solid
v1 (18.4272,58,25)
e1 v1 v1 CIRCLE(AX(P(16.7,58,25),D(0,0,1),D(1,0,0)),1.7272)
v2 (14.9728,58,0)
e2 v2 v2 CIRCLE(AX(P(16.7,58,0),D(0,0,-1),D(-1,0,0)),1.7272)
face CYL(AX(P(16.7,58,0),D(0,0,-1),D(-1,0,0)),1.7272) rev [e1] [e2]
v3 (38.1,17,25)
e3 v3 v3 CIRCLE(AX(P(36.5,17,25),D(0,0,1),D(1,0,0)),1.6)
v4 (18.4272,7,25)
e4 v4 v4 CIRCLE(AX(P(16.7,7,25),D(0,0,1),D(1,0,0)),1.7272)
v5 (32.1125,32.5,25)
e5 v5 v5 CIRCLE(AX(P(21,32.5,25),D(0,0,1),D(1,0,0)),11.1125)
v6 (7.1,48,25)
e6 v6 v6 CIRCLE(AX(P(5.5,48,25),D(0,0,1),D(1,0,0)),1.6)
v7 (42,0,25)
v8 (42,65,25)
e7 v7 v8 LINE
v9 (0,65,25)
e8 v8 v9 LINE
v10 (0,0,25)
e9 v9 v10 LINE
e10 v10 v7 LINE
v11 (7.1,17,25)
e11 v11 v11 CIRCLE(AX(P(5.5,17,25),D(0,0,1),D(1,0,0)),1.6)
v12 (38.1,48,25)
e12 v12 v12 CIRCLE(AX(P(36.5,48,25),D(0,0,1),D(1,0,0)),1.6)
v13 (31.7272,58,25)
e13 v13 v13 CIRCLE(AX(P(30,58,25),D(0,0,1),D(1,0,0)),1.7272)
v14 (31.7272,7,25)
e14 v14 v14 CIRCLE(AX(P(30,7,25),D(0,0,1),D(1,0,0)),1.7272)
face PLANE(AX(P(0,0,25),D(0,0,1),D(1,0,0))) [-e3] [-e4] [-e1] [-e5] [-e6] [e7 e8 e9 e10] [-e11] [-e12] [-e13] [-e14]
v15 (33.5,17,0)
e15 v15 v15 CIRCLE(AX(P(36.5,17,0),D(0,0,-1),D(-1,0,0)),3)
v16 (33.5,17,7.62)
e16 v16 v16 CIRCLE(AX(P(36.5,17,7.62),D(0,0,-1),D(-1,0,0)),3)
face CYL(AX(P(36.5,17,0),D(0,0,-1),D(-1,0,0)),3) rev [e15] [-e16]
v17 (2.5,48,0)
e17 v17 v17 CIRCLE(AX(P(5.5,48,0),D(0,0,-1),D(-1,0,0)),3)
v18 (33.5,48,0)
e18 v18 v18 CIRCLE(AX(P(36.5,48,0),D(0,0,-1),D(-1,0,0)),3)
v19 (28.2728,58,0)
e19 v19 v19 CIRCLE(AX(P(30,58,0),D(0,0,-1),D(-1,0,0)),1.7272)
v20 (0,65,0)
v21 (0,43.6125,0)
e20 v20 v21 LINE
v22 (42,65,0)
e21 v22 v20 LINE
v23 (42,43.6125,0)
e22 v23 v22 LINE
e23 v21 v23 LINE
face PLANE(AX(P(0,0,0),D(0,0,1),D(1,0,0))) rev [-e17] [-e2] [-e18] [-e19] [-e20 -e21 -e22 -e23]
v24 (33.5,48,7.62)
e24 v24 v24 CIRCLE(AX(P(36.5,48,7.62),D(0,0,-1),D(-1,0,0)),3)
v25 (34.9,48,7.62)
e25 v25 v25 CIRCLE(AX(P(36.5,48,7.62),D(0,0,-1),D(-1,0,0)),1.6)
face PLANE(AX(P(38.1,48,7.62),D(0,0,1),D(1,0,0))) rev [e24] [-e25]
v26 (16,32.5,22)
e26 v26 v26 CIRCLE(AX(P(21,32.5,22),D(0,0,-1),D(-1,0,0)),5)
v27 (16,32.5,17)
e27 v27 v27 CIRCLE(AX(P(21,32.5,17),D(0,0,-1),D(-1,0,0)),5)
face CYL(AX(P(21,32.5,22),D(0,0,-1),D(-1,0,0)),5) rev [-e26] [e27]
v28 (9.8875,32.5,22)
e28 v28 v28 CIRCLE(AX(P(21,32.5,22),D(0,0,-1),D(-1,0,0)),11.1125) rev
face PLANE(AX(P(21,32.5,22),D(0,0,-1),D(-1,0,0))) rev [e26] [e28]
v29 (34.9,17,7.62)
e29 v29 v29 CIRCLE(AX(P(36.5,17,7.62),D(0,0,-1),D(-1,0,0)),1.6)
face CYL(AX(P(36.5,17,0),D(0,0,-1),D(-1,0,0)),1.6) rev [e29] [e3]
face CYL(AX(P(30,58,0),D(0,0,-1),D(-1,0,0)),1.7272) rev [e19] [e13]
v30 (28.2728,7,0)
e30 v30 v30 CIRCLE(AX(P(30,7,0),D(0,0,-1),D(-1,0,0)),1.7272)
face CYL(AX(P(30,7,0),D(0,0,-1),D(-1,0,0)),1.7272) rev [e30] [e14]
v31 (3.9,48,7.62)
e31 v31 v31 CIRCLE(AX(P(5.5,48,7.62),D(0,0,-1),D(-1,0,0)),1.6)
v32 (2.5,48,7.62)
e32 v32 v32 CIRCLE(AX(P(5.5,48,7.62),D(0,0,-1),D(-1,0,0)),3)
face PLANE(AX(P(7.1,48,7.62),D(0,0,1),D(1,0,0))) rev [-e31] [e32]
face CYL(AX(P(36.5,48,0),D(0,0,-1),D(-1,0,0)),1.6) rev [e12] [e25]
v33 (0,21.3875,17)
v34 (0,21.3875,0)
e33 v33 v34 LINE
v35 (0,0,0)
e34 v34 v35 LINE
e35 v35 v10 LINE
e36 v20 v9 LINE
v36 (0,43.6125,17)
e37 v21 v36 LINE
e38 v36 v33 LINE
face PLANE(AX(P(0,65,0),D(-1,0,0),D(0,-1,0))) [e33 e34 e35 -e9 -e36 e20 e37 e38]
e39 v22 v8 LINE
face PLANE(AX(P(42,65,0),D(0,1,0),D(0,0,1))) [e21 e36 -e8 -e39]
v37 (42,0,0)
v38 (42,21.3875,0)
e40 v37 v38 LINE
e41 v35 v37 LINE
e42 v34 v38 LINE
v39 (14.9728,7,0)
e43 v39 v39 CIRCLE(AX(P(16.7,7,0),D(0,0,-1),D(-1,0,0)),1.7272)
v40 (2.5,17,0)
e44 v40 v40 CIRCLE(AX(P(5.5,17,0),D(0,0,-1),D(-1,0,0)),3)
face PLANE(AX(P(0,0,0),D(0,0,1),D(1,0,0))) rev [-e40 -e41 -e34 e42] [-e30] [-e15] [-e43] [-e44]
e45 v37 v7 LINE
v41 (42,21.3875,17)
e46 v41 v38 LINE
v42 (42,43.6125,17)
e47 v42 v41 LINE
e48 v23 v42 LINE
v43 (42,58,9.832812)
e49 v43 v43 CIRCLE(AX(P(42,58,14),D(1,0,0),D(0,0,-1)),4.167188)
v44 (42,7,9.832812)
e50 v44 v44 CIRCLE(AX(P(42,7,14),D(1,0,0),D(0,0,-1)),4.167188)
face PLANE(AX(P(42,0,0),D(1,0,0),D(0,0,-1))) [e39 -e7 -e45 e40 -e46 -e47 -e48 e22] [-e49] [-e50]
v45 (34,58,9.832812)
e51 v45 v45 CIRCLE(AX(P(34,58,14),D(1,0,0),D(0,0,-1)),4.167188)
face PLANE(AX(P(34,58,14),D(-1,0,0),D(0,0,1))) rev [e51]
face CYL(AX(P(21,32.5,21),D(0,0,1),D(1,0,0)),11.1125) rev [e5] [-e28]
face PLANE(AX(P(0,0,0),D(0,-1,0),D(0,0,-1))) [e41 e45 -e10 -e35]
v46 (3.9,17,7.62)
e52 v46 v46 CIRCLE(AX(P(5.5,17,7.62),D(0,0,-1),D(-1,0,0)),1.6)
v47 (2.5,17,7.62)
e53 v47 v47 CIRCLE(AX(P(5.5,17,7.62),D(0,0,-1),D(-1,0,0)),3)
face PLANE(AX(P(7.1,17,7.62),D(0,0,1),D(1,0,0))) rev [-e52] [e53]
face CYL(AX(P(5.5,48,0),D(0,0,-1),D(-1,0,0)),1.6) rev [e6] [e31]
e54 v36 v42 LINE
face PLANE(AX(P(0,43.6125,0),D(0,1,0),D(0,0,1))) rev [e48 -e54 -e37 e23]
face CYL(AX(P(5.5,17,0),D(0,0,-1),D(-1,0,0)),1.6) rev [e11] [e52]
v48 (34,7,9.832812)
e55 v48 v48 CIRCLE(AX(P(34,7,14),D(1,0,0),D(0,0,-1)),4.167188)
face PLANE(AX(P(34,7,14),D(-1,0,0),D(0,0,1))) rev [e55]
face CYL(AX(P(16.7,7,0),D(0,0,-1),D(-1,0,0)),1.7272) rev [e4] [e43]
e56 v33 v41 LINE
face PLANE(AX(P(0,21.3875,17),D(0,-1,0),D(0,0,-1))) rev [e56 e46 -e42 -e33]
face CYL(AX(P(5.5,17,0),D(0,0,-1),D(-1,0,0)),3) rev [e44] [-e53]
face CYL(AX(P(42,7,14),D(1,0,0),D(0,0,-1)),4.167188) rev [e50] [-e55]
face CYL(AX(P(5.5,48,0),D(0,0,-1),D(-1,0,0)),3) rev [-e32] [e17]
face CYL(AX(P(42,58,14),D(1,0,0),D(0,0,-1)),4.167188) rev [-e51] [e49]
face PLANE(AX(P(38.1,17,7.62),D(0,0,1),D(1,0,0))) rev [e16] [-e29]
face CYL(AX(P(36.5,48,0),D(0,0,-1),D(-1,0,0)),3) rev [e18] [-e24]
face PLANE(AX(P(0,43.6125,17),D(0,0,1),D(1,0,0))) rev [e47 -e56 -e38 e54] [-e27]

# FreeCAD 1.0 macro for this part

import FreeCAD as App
import Part
import Sketcher

V = App.Vector
Q = App.Units.Quantity


def add_polygon(sketch, points):
    """Adds a closed chain of lines whose ends are joined by coincident constraints."""
    first, n = sketch.GeometryCount, len(points)
    for a, b in zip(points, points[1:] + points[:1]):
        sketch.addGeometry(Part.LineSegment(App.Vector(*a, 0), App.Vector(*b, 0)), False)
    for i in range(n):
        sketch.addConstraint(Sketcher.Constraint("Coincident", first + i, 2, first + (i + 1) % n, 1))

doc = App.newDocument("Part")
body = doc.addObject("PartDesign::Body", "Body")

sketch1 = body.newObject("Sketcher::SketchObject", "Sketch")
sketch1.AttachmentSupport = (doc.getObject("XY_Plane"), [""])
sketch1.MapMode = "FlatFace"
sketch1.AttachmentOffset = App.Placement(V(0, 0, 21), App.Rotation())
add_polygon(sketch1, [(0, 65), (0, 0), (42, 0), (42, 65)])
sketch1.addConstraint(Sketcher.Constraint("Vertical", 0))
sketch1.addConstraint(Sketcher.Constraint("Horizontal", 1))
sketch1.addConstraint(Sketcher.Constraint("Vertical", 2))
sketch1.addConstraint(Sketcher.Constraint("Horizontal", 3))
sketch1.addConstraint(Sketcher.Constraint("Coincident", 0, 2, -1, 1))
sketch1.addConstraint(Sketcher.Constraint("DistanceX", 1, 1, 1, 2, Q("42 mm")))
sketch1.addConstraint(Sketcher.Constraint("DistanceY", 0, 2, 0, 1, Q("65 mm")))
pad1 = body.newObject("PartDesign::Pad", "Pad")
pad1.Profile = sketch1
pad1.Length = 21
pad1.Reversed = True

sketch2 = body.newObject("Sketcher::SketchObject", "Sketch001")
sketch2.AttachmentSupport = (doc.getObject("YZ_Plane"), [""])
sketch2.MapMode = "FlatFace"
sketch2.AttachmentOffset = App.Placement(V(0, 0, 42), App.Rotation())
add_polygon(sketch2, [(43.6125, 17), (21.3875, 17), (21.3875, 0), (43.6125, 0)])
sketch2.addConstraint(Sketcher.Constraint("Horizontal", 0))
sketch2.addConstraint(Sketcher.Constraint("Vertical", 1))
sketch2.addConstraint(Sketcher.Constraint("Horizontal", 2))
sketch2.addConstraint(Sketcher.Constraint("Vertical", 3))
sketch2.addConstraint(Sketcher.Constraint("PointOnObject", 1, 2, -1))
sketch2.addConstraint(Sketcher.Constraint("DistanceY", 1, 2, 1, 1, Q("17 mm")))
sketch2.addConstraint(Sketcher.Constraint("DistanceX", 0, 2, 0, 1, Q("22.225 mm")))
sketch2.addConstraint(Sketcher.Constraint("DistanceX", -1, 1, 0, 2, Q("21.3875 mm")))
pocket1 = body.newObject("PartDesign::Pocket", "Pocket")
pocket1.Profile = sketch2
pocket1.Type = "ThroughAll"

sketch3 = body.newObject("Sketcher::SketchObject", "Sketch002")
sketch3.AttachmentSupport = (doc.getObject("XY_Plane"), [""])
sketch3.MapMode = "FlatFace"
sketch3.addGeometry(Part.Circle(V(30, 7, 0), V(0, 0, 1), 1.7272), False)
sketch3.addGeometry(Part.Circle(V(16.7, 7, 0), V(0, 0, 1), 1.7272), False)
sketch3.addGeometry(Part.Circle(V(16.7, 58, 0), V(0, 0, 1), 1.7272), False)
sketch3.addGeometry(Part.Circle(V(30, 58, 0), V(0, 0, 1), 1.7272), False)
sketch3.addConstraint(Sketcher.Constraint("Equal", 0, 1))
sketch3.addConstraint(Sketcher.Constraint("Equal", 1, 2))
sketch3.addConstraint(Sketcher.Constraint("Equal", 2, 3))
sketch3.addConstraint(Sketcher.Constraint("Horizontal", 0, 3, 1, 3))
sketch3.addConstraint(Sketcher.Constraint("Horizontal", 2, 3, 3, 3))
sketch3.addConstraint(Sketcher.Constraint("Vertical", 1, 3, 2, 3))
sketch3.addConstraint(Sketcher.Constraint("Vertical", 0, 3, 3, 3))
sketch3.addConstraint(Sketcher.Constraint("DistanceX", -1, 1, 0, 3, Q("30 mm")))
sketch3.addConstraint(Sketcher.Constraint("DistanceY", -1, 1, 0, 3, Q("7 mm")))
sketch3.addConstraint(Sketcher.Constraint("DistanceY", -1, 1, 2, 3, Q("58 mm")))
sketch3.addConstraint(Sketcher.Constraint("Diameter", 0, Q("3.4544 mm")))
sketch3.addConstraint(Sketcher.Constraint("DistanceX", -1, 1, 1, 3, Q("16.7 mm")))
doc.recompute()
hole = body.newObject("PartDesign::Hole", "Hole")
hole.Profile = sketch3
hole.ThreadType = "None"
hole.Diameter = 3.4544
hole.DepthType = "Dimension"
hole.Depth = 21
hole.DrillPoint = "Flat"
hole.Reversed = True

sketch4 = body.newObject("Sketcher::SketchObject", "Sketch003")
sketch4.AttachmentSupport = (doc.getObject("XY_Plane"), [""])
sketch4.MapMode = "FlatFace"
sketch4.AttachmentOffset = App.Placement(V(0, 0, 21), App.Rotation())
sketch4.addGeometry(Part.Circle(V(21, 32.5, 0), V(0, 0, 1), 11.1125), False)
sketch4.addConstraint(Sketcher.Constraint("Diameter", 0, Q("22.225 mm")))
sketch4.addConstraint(Sketcher.Constraint("DistanceX", -1, 1, 0, 3, Q("21 mm")))
sketch4.addConstraint(Sketcher.Constraint("DistanceY", -1, 1, 0, 3, Q("32.5 mm")))
doc.recompute()
hole2 = body.newObject("PartDesign::Hole", "Hole001")
hole2.Profile = sketch4
hole2.ThreadType = "None"
hole2.Diameter = 22.225
hole2.DepthType = "Dimension"
hole2.Depth = 21
hole2.DrillPoint = "Flat"

sketch5 = body.newObject("Sketcher::SketchObject", "Sketch004")
sketch5.AttachmentSupport = (doc.getObject("XY_Plane"), [""])
sketch5.MapMode = "FlatFace"
sketch5.addGeometry(Part.Circle(V(36.5, 17, 0), V(0, 0, 1), 1.6), False)
sketch5.addGeometry(Part.Circle(V(5.5, 17, 0), V(0, 0, 1), 1.6), False)
sketch5.addGeometry(Part.Circle(V(5.5, 48, 0), V(0, 0, 1), 1.6), False)
sketch5.addGeometry(Part.Circle(V(36.5, 48, 0), V(0, 0, 1), 1.6), False)
sketch5.addConstraint(Sketcher.Constraint("Equal", 0, 1))
sketch5.addConstraint(Sketcher.Constraint("Equal", 1, 2))
sketch5.addConstraint(Sketcher.Constraint("Equal", 2, 3))
sketch5.addConstraint(Sketcher.Constraint("Horizontal", 0, 3, 1, 3))
sketch5.addConstraint(Sketcher.Constraint("Horizontal", 2, 3, 3, 3))
sketch5.addConstraint(Sketcher.Constraint("Vertical", 1, 3, 2, 3))
sketch5.addConstraint(Sketcher.Constraint("Vertical", 0, 3, 3, 3))
sketch5.addConstraint(Sketcher.Constraint("Diameter", 0, Q("3.2 mm")))
sketch5.addConstraint(Sketcher.Constraint("DistanceY", -1, 1, 0, 3, Q("17 mm")))
sketch5.addConstraint(Sketcher.Constraint("DistanceY", -1, 1, 2, 3, Q("48 mm")))
sketch5.addConstraint(Sketcher.Constraint("DistanceX", 1, 3, 0, 3, Q("31 mm")))
sketch5.addConstraint(Sketcher.Constraint("DistanceX", -1, 1, 0, 3, Q("36.5 mm")))
doc.recompute()
hole3 = body.newObject("PartDesign::Hole", "Hole002")
hole3.Profile = sketch5
hole3.ThreadType = "None"
hole3.Diameter = 3.2
hole3.DepthType = "Dimension"
hole3.Depth = 21
hole3.DrillPoint = "Flat"
hole3.HoleCutType = "Counterbore"
hole3.HoleCutDiameter = 6
hole3.HoleCutDepth = 7.62
hole3.Reversed = True

sketch6 = body.newObject("Sketcher::SketchObject", "Sketch005")
sketch6.AttachmentSupport = (doc.getObject("YZ_Plane"), [""])
sketch6.MapMode = "FlatFace"
sketch6.AttachmentOffset = App.Placement(V(0, 0, 42), App.Rotation())
sketch6.addGeometry(Part.Circle(V(7, 14, 0), V(0, 0, 1), 4.167187), False)
sketch6.addGeometry(Part.Circle(V(58, 14, 0), V(0, 0, 1), 4.167187), False)
sketch6.addConstraint(Sketcher.Constraint("Equal", 0, 1))
sketch6.addConstraint(Sketcher.Constraint("Horizontal", 0, 3, 1, 3))
sketch6.addConstraint(Sketcher.Constraint("DistanceX", -1, 1, 0, 3, Q("7 mm")))
sketch6.addConstraint(Sketcher.Constraint("DistanceY", -1, 1, 0, 3, Q("14 mm")))
sketch6.addConstraint(Sketcher.Constraint("DistanceX", -1, 1, 1, 3, Q("58 mm")))
sketch6.addConstraint(Sketcher.Constraint("Diameter", 0, Q("8.334375 mm")))
doc.recompute()
hole4 = body.newObject("PartDesign::Hole", "Hole003")
hole4.Profile = sketch6
hole4.ThreadType = "None"
hole4.Diameter = 8.334375
hole4.DepthType = "Dimension"
hole4.Depth = 8
hole4.DrillPoint = "Flat"

sketch7 = body.newObject("Sketcher::SketchObject", "Sketch006")
sketch7.AttachmentSupport = (doc.getObject("XY_Plane"), [""])
sketch7.MapMode = "FlatFace"
sketch7.AttachmentOffset = App.Placement(V(0, 0, 21), App.Rotation())
add_polygon(sketch7, [(0, 65), (0, 0), (42, 0), (42, 65)])
sketch7.addGeometry(Part.Circle(V(5.5, 17, 0), V(0, 0, 1), 1.6), False)
sketch7.addGeometry(Part.Circle(V(16.7, 7, 0), V(0, 0, 1), 1.7272), False)
sketch7.addGeometry(Part.Circle(V(30, 7, 0), V(0, 0, 1), 1.7272), False)
sketch7.addGeometry(Part.Circle(V(36.5, 17, 0), V(0, 0, 1), 1.6), False)
sketch7.addGeometry(Part.Circle(V(21, 32.5, 0), V(0, 0, 1), 11.1125), False)
sketch7.addGeometry(Part.Circle(V(5.5, 48, 0), V(0, 0, 1), 1.6), False)
sketch7.addGeometry(Part.Circle(V(16.7, 58, 0), V(0, 0, 1), 1.7272), False)
sketch7.addGeometry(Part.Circle(V(36.5, 48, 0), V(0, 0, 1), 1.6), False)
sketch7.addGeometry(Part.Circle(V(30, 58, 0), V(0, 0, 1), 1.7272), False)
sketch7.addConstraint(Sketcher.Constraint("Vertical", 0))
sketch7.addConstraint(Sketcher.Constraint("Horizontal", 1))
sketch7.addConstraint(Sketcher.Constraint("Vertical", 2))
sketch7.addConstraint(Sketcher.Constraint("Horizontal", 3))
sketch7.addConstraint(Sketcher.Constraint("Coincident", 0, 2, -1, 1))
sketch7.addConstraint(Sketcher.Constraint("Equal", 5, 6))
sketch7.addConstraint(Sketcher.Constraint("Equal", 4, 7))
sketch7.addConstraint(Sketcher.Constraint("Equal", 7, 9))
sketch7.addConstraint(Sketcher.Constraint("Equal", 6, 10))
sketch7.addConstraint(Sketcher.Constraint("Equal", 9, 11))
sketch7.addConstraint(Sketcher.Constraint("Equal", 10, 12))
sketch7.addConstraint(Sketcher.Constraint("Horizontal", 5, 3, 6, 3))
sketch7.addConstraint(Sketcher.Constraint("Horizontal", 4, 3, 7, 3))
sketch7.addConstraint(Sketcher.Constraint("Horizontal", 9, 3, 11, 3))
sketch7.addConstraint(Sketcher.Constraint("Horizontal", 10, 3, 12, 3))
sketch7.addConstraint(Sketcher.Constraint("Vertical", 4, 3, 9, 3))
sketch7.addConstraint(Sketcher.Constraint("Vertical", 5, 3, 10, 3))
sketch7.addConstraint(Sketcher.Constraint("Vertical", 7, 3, 11, 3))
sketch7.addConstraint(Sketcher.Constraint("Vertical", 6, 3, 12, 3))
sketch7.addConstraint(Sketcher.Constraint("Diameter", 4, Q("3.2 mm")))
sketch7.addConstraint(Sketcher.Constraint("DistanceX", 1, 1, 1, 2, Q("42 mm")))
sketch7.addConstraint(Sketcher.Constraint("DistanceY", 0, 2, 0, 1, Q("65 mm")))
sketch7.addConstraint(Sketcher.Constraint("Diameter", 8, Q("22.225 mm")))
sketch7.addConstraint(Sketcher.Constraint("DistanceY", -1, 1, 4, 3, Q("17 mm")))
sketch7.addConstraint(Sketcher.Constraint("DistanceY", -1, 1, 5, 3, Q("7 mm")))
sketch7.addConstraint(Sketcher.Constraint("DistanceX", -1, 1, 6, 3, Q("30 mm")))
sketch7.addConstraint(Sketcher.Constraint("DistanceX", -1, 1, 8, 3, Q("21 mm")))
sketch7.addConstraint(Sketcher.Constraint("DistanceY", -1, 1, 9, 3, Q("48 mm")))
sketch7.addConstraint(Sketcher.Constraint("DistanceY", -1, 1, 10, 3, Q("58 mm")))
sketch7.addConstraint(Sketcher.Constraint("DistanceX", 4, 3, 7, 3, Q("31 mm")))
sketch7.addConstraint(Sketcher.Constraint("Diameter", 5, Q("3.4544 mm")))
sketch7.addConstraint(Sketcher.Constraint("DistanceX", -1, 1, 4, 3, Q("5.5 mm")))
sketch7.addConstraint(Sketcher.Constraint("DistanceX", -1, 1, 5, 3, Q("16.7 mm")))
sketch7.addConstraint(Sketcher.Constraint("DistanceY", -1, 1, 8, 3, Q("32.5 mm")))
pad2 = body.newObject("PartDesign::Pad", "Pad001")
pad2.Profile = sketch7
pad2.Length = 4

sketch8 = body.newObject("Sketcher::SketchObject", "Sketch007")
sketch8.AttachmentSupport = (doc.getObject("XY_Plane"), [""])
sketch8.MapMode = "FlatFace"
sketch8.AttachmentOffset = App.Placement(V(0, 0, 17), App.Rotation())
sketch8.addGeometry(Part.Circle(V(21, 32.5, 0), V(0, 0, 1), 11.1125), False)
sketch8.addGeometry(Part.Circle(V(21, 32.5, 0), V(0, 0, 1), 5), False)
sketch8.addConstraint(Sketcher.Constraint("Coincident", 1, 3, 0, 3))
sketch8.addConstraint(Sketcher.Constraint("Diameter", 1, Q("10 mm")))
sketch8.addConstraint(Sketcher.Constraint("Diameter", 0, Q("22.225 mm")))
sketch8.addConstraint(Sketcher.Constraint("DistanceX", -1, 1, 0, 3, Q("21 mm")))
sketch8.addConstraint(Sketcher.Constraint("DistanceY", -1, 1, 0, 3, Q("32.5 mm")))
pad3 = body.newObject("PartDesign::Pad", "Pad002")
pad3.Profile = sketch8
pad3.Length = 5

doc.recompute()
